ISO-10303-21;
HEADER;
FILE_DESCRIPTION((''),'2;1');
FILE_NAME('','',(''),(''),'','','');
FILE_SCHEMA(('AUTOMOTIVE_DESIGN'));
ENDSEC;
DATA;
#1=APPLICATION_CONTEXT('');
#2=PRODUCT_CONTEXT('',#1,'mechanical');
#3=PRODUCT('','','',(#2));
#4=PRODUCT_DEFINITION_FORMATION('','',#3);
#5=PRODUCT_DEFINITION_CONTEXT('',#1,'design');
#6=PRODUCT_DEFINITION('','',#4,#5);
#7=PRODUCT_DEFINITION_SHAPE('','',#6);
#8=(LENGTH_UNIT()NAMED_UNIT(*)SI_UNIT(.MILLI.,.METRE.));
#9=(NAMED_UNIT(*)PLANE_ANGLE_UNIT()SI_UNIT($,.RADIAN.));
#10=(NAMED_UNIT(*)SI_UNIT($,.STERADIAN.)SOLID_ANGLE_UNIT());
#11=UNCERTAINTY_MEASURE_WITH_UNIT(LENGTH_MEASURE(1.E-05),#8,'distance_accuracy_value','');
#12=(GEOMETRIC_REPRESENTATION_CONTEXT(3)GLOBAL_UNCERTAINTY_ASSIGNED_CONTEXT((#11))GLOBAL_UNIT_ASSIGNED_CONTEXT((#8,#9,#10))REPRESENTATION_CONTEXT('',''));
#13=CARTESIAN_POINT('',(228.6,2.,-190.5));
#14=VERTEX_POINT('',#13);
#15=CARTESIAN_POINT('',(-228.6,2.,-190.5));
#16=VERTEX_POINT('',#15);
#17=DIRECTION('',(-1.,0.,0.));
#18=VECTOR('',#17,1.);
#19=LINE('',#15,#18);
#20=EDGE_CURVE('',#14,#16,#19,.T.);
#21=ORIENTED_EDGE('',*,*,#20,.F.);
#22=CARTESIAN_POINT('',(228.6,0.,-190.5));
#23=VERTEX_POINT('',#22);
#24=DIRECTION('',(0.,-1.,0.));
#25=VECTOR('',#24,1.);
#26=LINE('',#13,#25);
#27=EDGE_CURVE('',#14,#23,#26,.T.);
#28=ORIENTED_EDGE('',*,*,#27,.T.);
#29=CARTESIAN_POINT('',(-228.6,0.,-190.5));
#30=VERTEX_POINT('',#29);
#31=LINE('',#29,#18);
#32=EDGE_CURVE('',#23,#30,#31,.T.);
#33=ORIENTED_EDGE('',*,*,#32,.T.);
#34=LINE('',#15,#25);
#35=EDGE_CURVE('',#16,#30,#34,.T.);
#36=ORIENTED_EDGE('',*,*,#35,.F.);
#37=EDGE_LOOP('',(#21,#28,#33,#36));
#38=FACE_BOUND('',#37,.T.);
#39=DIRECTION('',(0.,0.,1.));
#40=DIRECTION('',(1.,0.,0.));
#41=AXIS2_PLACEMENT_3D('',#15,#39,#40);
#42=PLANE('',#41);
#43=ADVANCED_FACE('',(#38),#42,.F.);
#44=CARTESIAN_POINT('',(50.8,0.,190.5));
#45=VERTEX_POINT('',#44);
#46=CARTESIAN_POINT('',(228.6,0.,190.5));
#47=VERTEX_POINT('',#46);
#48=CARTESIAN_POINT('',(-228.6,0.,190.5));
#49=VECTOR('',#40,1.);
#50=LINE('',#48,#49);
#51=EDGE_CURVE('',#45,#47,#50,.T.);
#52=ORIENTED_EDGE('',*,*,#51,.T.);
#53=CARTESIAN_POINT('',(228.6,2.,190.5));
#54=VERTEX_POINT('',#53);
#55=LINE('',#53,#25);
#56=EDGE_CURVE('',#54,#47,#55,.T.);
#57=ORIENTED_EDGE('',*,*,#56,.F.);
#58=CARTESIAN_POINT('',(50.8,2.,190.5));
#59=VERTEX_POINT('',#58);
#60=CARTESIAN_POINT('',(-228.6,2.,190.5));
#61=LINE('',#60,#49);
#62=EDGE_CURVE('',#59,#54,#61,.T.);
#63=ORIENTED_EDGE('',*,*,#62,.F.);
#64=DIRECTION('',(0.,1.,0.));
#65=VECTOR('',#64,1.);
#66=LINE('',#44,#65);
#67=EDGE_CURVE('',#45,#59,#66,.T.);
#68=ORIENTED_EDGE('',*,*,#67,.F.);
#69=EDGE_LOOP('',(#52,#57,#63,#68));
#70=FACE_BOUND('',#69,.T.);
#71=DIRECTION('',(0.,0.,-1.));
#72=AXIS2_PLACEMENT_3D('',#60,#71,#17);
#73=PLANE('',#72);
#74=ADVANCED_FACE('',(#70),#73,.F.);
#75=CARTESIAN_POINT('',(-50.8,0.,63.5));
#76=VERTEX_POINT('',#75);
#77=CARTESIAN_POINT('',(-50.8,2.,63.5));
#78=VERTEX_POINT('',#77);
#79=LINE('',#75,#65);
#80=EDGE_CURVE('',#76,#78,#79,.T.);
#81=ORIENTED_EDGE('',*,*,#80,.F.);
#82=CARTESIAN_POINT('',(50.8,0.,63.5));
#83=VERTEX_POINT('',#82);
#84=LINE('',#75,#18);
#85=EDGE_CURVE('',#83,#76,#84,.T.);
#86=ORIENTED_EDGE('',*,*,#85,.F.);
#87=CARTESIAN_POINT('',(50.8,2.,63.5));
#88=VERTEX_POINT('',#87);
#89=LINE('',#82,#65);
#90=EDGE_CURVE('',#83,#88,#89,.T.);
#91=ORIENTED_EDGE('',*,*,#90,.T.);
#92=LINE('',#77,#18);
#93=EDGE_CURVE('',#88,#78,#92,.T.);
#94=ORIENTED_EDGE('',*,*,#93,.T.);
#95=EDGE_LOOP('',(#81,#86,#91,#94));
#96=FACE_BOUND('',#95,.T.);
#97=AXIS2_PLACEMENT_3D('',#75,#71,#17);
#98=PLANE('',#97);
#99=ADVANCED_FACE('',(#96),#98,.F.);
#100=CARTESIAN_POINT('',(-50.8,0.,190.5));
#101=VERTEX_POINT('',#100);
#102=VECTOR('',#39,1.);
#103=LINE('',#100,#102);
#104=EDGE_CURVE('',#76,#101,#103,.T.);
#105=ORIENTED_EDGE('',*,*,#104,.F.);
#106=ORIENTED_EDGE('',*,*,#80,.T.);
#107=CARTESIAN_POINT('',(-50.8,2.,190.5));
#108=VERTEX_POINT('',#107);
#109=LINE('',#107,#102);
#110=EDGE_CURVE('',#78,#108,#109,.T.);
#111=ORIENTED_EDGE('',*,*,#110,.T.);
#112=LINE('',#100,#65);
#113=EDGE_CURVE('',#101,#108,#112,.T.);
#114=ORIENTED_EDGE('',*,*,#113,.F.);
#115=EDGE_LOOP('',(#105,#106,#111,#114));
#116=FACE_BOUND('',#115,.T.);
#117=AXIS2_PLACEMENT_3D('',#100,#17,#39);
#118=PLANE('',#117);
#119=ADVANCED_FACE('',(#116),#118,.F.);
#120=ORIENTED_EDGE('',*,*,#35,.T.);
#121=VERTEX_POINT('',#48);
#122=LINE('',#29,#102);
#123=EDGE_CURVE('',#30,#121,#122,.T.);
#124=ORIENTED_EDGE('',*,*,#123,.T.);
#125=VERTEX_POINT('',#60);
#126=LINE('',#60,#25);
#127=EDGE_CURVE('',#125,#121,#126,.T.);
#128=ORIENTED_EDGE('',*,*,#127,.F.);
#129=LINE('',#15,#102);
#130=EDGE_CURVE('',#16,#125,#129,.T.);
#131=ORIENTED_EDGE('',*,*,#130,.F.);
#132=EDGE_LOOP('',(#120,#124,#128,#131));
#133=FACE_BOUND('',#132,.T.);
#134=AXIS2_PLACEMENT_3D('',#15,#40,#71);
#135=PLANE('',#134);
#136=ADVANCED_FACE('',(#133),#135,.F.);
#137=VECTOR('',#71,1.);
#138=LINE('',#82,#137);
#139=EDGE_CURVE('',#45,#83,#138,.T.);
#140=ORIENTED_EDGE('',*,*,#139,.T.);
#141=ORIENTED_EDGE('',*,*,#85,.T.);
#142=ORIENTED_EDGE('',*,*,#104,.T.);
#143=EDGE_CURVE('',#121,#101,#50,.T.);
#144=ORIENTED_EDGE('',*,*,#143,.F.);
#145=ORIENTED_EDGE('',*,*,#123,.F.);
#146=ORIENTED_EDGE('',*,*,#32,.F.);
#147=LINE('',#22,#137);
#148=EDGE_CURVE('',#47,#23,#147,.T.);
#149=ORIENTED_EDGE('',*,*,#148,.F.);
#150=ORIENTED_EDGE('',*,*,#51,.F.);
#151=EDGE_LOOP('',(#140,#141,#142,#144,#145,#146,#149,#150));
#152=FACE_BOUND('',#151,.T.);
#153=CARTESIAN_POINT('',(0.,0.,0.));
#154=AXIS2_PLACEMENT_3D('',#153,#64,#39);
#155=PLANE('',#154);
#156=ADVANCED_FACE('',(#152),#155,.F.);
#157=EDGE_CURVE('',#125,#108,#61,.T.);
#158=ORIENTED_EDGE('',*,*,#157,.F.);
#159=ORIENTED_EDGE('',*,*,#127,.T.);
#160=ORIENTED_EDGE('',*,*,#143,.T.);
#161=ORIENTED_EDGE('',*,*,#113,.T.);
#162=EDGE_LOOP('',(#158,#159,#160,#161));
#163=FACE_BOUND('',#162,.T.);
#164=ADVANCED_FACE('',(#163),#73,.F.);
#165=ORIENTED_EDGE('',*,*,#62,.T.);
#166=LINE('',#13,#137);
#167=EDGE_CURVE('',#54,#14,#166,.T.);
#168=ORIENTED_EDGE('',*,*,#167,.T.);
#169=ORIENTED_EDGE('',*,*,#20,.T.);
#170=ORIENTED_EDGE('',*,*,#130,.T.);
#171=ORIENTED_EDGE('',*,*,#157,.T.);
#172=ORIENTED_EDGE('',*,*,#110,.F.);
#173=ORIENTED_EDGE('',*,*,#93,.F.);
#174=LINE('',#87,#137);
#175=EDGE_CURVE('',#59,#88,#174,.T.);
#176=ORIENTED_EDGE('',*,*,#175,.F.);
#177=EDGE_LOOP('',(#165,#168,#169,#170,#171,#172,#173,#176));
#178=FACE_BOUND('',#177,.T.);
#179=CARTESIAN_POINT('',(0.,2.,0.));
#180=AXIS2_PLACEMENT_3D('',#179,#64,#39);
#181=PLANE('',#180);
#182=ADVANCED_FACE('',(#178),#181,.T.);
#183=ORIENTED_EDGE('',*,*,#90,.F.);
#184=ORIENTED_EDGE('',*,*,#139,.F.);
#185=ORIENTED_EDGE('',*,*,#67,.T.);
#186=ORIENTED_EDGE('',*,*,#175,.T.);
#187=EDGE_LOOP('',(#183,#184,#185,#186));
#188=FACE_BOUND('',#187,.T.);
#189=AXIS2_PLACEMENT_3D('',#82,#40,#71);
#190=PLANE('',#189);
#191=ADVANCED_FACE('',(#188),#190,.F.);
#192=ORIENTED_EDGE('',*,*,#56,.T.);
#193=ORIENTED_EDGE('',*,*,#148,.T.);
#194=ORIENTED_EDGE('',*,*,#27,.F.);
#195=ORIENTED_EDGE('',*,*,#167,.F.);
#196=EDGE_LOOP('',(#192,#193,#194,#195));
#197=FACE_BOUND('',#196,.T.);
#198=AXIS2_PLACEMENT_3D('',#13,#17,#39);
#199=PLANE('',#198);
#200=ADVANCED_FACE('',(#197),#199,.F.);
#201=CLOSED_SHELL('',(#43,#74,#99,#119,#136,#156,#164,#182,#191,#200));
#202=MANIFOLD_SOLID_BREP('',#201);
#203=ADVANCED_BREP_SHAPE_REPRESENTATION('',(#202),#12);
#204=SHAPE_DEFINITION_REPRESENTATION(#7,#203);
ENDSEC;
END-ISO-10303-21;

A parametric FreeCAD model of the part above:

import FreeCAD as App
import Part
import Sketcher
Q = App.Units.Quantity

doc = App.newDocument("Part")
body = doc.addObject("PartDesign::Body", "Body")

# Sketch on XZ plane
sketch1 = doc.addObject("Sketcher::SketchObject", "Sketch")
body.addObject(sketch1)
sketch1.AttachmentSupport = (doc.XZ_Plane, [""])
sketch1.MapMode = "FlatFace"
sketch1.addGeometry(Part.LineSegment(App.Vector(-229, -190, 0), App.Vector(-229, 190, 0)), False)
sketch1.addGeometry(Part.LineSegment(App.Vector(-229, 190, 0), App.Vector(229, 190, 0)), False)
sketch1.addGeometry(Part.LineSegment(App.Vector(229, 190, 0), App.Vector(229, -190, 0)), False)
sketch1.addGeometry(Part.LineSegment(App.Vector(229, -190, 0), App.Vector(-229, -190, 0)), False)
sketch1.addConstraint(Sketcher.Constraint("Coincident", 0, 2, 1, 1))
sketch1.addConstraint(Sketcher.Constraint("Coincident", 1, 2, 2, 1))
sketch1.addConstraint(Sketcher.Constraint("Coincident", 2, 2, 3, 1))
sketch1.addConstraint(Sketcher.Constraint("Coincident", 3, 2, 0, 1))
sketch1.addConstraint(Sketcher.Constraint("Vertical", 0))
sketch1.addConstraint(Sketcher.Constraint("Horizontal", 1))
sketch1.addConstraint(Sketcher.Constraint("Vertical", 2))
sketch1.addConstraint(Sketcher.Constraint("Horizontal", 3))
sketch1.addConstraint(Sketcher.Constraint("Symmetric", 0, 2, 2, 2, -1, 1))
sketch1.addConstraint(Sketcher.Constraint("DistanceX", 1, 1, 1, 2, Q("18 in")))
sketch1.addConstraint(Sketcher.Constraint("DistanceY", 0, 1, 0, 2, Q("15 in")))
pad1 = doc.addObject("PartDesign::Pad", "Pad")
body.addObject(pad1)
pad1.Profile = sketch1
pad1.Length = 2
pad1.Reversed = True

# Sketch on XZ plane
sketch2 = doc.addObject("Sketcher::SketchObject", "Sketch001")
body.addObject(sketch2)
sketch2.AttachmentSupport = (doc.XZ_Plane, [""])
sketch2.MapMode = "FlatFace"
sketch2.AttachmentOffset = App.Placement(App.Vector(0, 0, -2), App.Rotation())
sketch2.addGeometry(Part.LineSegment(App.Vector(-51, 64, 0), App.Vector(-51, 190, 0)), False)
sketch2.addGeometry(Part.LineSegment(App.Vector(-51, 190, 0), App.Vector(51, 190, 0)), False)
sketch2.addGeometry(Part.LineSegment(App.Vector(51, 190, 0), App.Vector(51, 64, 0)), False)
sketch2.addGeometry(Part.LineSegment(App.Vector(51, 64, 0), App.Vector(-51, 64, 0)), False)
sketch2.addConstraint(Sketcher.Constraint("Coincident", 0, 2, 1, 1))
sketch2.addConstraint(Sketcher.Constraint("Coincident", 1, 2, 2, 1))
sketch2.addConstraint(Sketcher.Constraint("Coincident", 2, 2, 3, 1))
sketch2.addConstraint(Sketcher.Constraint("Coincident", 3, 2, 0, 1))
sketch2.addConstraint(Sketcher.Constraint("Vertical", 0))
sketch2.addConstraint(Sketcher.Constraint("Horizontal", 1))
sketch2.addConstraint(Sketcher.Constraint("Vertical", 2))
sketch2.addConstraint(Sketcher.Constraint("Horizontal", 3))
sketch2.addConstraint(Sketcher.Constraint("DistanceX", 1, 1, 1, 2, Q("4 in")))
sketch2.addConstraint(Sketcher.Constraint("DistanceY", 0, 1, 0, 2, Q("5 in")))
sketch2.addConstraint(Sketcher.Constraint("DistanceX", 0, 2, -1, 1, Q("2 in")))
sketch2.addConstraint(Sketcher.Constraint("DistanceY", -1, 1, 0, 2, Q("7.5 in")))
pocket1 = doc.addObject("PartDesign::Pocket", "Pocket")
body.addObject(pocket1)
pocket1.Profile = sketch2
pocket1.Type = "ThroughAll"
pocket1.Reversed = True

doc.recompute()
